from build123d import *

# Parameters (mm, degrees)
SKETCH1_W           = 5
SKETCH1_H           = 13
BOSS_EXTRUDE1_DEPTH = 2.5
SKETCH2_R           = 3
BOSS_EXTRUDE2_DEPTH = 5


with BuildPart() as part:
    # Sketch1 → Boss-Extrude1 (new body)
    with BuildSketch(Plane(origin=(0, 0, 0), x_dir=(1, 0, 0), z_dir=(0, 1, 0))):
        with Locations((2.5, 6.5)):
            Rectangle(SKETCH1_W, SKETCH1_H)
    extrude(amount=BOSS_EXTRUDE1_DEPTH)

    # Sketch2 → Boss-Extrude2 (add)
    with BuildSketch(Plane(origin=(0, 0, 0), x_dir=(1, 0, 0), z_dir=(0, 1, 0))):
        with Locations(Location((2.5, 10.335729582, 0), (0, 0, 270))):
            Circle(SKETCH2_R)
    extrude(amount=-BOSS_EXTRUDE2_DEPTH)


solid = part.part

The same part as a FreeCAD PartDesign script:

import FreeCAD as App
import Part
import Sketcher

doc = App.newDocument("Part")
body = doc.addObject("PartDesign::Body", "Body")

sketch1 = body.newObject("Sketcher::SketchObject", "Sketch")
sketch1.AttachmentSupport = (doc.getObject("XZ_Plane"), [""])
sketch1.MapMode = "FlatFace"
sketch1.addGeometry([
    Part.LineSegment(App.Vector(0, -13, 0), App.Vector(0, 0, 0)),
    Part.LineSegment(App.Vector(0, 0, 0), App.Vector(5, 0, 0)),
    Part.LineSegment(App.Vector(5, 0, 0), App.Vector(5, -13, 0)),
    Part.LineSegment(App.Vector(5, -13, 0), App.Vector(0, -13, 0)),
], False)
sketch1.addConstraint([
    Sketcher.Constraint("Coincident", 0, 2, 1, 1),
    Sketcher.Constraint("Coincident", 1, 2, 2, 1),
    Sketcher.Constraint("Coincident", 2, 2, 3, 1),
    Sketcher.Constraint("Coincident", 3, 2, 0, 1),
    Sketcher.Constraint("Vertical", 0),
    Sketcher.Constraint("Horizontal", 1),
    Sketcher.Constraint("Vertical", 2),
    Sketcher.Constraint("Horizontal", 3),
    Sketcher.Constraint("Coincident", 0, 2, -1, 1),
    Sketcher.Constraint("DistanceX", 1, 1, 1, 2, 5.0),
    Sketcher.Constraint("DistanceY", 0, 1, 0, 2, 13.0),
])
pad1 = body.newObject("PartDesign::Pad", "Pad")
pad1.Profile = sketch1
pad1.Length = 2.5
pad1.Reversed = True

sketch2 = body.newObject("Sketcher::SketchObject", "Sketch001")
sketch2.AttachmentSupport = (doc.getObject("XZ_Plane"), [""])
sketch2.MapMode = "FlatFace"
sketch2.addGeometry(Part.Circle(App.Vector(2.5, -10.33573, 0), App.Vector(0, 0, 1), 3), False)
sketch2.addConstraint([
    Sketcher.Constraint("Diameter", 0, 6.0),
    Sketcher.Constraint("DistanceX", -1, 1, 0, 3, 2.5),
    Sketcher.Constraint("DistanceY", 0, 3, -1, 1, 10.33573),
])
pad2 = body.newObject("PartDesign::Pad", "Pad001")
pad2.Profile = sketch2
pad2.Length = 5

doc.recompute()
